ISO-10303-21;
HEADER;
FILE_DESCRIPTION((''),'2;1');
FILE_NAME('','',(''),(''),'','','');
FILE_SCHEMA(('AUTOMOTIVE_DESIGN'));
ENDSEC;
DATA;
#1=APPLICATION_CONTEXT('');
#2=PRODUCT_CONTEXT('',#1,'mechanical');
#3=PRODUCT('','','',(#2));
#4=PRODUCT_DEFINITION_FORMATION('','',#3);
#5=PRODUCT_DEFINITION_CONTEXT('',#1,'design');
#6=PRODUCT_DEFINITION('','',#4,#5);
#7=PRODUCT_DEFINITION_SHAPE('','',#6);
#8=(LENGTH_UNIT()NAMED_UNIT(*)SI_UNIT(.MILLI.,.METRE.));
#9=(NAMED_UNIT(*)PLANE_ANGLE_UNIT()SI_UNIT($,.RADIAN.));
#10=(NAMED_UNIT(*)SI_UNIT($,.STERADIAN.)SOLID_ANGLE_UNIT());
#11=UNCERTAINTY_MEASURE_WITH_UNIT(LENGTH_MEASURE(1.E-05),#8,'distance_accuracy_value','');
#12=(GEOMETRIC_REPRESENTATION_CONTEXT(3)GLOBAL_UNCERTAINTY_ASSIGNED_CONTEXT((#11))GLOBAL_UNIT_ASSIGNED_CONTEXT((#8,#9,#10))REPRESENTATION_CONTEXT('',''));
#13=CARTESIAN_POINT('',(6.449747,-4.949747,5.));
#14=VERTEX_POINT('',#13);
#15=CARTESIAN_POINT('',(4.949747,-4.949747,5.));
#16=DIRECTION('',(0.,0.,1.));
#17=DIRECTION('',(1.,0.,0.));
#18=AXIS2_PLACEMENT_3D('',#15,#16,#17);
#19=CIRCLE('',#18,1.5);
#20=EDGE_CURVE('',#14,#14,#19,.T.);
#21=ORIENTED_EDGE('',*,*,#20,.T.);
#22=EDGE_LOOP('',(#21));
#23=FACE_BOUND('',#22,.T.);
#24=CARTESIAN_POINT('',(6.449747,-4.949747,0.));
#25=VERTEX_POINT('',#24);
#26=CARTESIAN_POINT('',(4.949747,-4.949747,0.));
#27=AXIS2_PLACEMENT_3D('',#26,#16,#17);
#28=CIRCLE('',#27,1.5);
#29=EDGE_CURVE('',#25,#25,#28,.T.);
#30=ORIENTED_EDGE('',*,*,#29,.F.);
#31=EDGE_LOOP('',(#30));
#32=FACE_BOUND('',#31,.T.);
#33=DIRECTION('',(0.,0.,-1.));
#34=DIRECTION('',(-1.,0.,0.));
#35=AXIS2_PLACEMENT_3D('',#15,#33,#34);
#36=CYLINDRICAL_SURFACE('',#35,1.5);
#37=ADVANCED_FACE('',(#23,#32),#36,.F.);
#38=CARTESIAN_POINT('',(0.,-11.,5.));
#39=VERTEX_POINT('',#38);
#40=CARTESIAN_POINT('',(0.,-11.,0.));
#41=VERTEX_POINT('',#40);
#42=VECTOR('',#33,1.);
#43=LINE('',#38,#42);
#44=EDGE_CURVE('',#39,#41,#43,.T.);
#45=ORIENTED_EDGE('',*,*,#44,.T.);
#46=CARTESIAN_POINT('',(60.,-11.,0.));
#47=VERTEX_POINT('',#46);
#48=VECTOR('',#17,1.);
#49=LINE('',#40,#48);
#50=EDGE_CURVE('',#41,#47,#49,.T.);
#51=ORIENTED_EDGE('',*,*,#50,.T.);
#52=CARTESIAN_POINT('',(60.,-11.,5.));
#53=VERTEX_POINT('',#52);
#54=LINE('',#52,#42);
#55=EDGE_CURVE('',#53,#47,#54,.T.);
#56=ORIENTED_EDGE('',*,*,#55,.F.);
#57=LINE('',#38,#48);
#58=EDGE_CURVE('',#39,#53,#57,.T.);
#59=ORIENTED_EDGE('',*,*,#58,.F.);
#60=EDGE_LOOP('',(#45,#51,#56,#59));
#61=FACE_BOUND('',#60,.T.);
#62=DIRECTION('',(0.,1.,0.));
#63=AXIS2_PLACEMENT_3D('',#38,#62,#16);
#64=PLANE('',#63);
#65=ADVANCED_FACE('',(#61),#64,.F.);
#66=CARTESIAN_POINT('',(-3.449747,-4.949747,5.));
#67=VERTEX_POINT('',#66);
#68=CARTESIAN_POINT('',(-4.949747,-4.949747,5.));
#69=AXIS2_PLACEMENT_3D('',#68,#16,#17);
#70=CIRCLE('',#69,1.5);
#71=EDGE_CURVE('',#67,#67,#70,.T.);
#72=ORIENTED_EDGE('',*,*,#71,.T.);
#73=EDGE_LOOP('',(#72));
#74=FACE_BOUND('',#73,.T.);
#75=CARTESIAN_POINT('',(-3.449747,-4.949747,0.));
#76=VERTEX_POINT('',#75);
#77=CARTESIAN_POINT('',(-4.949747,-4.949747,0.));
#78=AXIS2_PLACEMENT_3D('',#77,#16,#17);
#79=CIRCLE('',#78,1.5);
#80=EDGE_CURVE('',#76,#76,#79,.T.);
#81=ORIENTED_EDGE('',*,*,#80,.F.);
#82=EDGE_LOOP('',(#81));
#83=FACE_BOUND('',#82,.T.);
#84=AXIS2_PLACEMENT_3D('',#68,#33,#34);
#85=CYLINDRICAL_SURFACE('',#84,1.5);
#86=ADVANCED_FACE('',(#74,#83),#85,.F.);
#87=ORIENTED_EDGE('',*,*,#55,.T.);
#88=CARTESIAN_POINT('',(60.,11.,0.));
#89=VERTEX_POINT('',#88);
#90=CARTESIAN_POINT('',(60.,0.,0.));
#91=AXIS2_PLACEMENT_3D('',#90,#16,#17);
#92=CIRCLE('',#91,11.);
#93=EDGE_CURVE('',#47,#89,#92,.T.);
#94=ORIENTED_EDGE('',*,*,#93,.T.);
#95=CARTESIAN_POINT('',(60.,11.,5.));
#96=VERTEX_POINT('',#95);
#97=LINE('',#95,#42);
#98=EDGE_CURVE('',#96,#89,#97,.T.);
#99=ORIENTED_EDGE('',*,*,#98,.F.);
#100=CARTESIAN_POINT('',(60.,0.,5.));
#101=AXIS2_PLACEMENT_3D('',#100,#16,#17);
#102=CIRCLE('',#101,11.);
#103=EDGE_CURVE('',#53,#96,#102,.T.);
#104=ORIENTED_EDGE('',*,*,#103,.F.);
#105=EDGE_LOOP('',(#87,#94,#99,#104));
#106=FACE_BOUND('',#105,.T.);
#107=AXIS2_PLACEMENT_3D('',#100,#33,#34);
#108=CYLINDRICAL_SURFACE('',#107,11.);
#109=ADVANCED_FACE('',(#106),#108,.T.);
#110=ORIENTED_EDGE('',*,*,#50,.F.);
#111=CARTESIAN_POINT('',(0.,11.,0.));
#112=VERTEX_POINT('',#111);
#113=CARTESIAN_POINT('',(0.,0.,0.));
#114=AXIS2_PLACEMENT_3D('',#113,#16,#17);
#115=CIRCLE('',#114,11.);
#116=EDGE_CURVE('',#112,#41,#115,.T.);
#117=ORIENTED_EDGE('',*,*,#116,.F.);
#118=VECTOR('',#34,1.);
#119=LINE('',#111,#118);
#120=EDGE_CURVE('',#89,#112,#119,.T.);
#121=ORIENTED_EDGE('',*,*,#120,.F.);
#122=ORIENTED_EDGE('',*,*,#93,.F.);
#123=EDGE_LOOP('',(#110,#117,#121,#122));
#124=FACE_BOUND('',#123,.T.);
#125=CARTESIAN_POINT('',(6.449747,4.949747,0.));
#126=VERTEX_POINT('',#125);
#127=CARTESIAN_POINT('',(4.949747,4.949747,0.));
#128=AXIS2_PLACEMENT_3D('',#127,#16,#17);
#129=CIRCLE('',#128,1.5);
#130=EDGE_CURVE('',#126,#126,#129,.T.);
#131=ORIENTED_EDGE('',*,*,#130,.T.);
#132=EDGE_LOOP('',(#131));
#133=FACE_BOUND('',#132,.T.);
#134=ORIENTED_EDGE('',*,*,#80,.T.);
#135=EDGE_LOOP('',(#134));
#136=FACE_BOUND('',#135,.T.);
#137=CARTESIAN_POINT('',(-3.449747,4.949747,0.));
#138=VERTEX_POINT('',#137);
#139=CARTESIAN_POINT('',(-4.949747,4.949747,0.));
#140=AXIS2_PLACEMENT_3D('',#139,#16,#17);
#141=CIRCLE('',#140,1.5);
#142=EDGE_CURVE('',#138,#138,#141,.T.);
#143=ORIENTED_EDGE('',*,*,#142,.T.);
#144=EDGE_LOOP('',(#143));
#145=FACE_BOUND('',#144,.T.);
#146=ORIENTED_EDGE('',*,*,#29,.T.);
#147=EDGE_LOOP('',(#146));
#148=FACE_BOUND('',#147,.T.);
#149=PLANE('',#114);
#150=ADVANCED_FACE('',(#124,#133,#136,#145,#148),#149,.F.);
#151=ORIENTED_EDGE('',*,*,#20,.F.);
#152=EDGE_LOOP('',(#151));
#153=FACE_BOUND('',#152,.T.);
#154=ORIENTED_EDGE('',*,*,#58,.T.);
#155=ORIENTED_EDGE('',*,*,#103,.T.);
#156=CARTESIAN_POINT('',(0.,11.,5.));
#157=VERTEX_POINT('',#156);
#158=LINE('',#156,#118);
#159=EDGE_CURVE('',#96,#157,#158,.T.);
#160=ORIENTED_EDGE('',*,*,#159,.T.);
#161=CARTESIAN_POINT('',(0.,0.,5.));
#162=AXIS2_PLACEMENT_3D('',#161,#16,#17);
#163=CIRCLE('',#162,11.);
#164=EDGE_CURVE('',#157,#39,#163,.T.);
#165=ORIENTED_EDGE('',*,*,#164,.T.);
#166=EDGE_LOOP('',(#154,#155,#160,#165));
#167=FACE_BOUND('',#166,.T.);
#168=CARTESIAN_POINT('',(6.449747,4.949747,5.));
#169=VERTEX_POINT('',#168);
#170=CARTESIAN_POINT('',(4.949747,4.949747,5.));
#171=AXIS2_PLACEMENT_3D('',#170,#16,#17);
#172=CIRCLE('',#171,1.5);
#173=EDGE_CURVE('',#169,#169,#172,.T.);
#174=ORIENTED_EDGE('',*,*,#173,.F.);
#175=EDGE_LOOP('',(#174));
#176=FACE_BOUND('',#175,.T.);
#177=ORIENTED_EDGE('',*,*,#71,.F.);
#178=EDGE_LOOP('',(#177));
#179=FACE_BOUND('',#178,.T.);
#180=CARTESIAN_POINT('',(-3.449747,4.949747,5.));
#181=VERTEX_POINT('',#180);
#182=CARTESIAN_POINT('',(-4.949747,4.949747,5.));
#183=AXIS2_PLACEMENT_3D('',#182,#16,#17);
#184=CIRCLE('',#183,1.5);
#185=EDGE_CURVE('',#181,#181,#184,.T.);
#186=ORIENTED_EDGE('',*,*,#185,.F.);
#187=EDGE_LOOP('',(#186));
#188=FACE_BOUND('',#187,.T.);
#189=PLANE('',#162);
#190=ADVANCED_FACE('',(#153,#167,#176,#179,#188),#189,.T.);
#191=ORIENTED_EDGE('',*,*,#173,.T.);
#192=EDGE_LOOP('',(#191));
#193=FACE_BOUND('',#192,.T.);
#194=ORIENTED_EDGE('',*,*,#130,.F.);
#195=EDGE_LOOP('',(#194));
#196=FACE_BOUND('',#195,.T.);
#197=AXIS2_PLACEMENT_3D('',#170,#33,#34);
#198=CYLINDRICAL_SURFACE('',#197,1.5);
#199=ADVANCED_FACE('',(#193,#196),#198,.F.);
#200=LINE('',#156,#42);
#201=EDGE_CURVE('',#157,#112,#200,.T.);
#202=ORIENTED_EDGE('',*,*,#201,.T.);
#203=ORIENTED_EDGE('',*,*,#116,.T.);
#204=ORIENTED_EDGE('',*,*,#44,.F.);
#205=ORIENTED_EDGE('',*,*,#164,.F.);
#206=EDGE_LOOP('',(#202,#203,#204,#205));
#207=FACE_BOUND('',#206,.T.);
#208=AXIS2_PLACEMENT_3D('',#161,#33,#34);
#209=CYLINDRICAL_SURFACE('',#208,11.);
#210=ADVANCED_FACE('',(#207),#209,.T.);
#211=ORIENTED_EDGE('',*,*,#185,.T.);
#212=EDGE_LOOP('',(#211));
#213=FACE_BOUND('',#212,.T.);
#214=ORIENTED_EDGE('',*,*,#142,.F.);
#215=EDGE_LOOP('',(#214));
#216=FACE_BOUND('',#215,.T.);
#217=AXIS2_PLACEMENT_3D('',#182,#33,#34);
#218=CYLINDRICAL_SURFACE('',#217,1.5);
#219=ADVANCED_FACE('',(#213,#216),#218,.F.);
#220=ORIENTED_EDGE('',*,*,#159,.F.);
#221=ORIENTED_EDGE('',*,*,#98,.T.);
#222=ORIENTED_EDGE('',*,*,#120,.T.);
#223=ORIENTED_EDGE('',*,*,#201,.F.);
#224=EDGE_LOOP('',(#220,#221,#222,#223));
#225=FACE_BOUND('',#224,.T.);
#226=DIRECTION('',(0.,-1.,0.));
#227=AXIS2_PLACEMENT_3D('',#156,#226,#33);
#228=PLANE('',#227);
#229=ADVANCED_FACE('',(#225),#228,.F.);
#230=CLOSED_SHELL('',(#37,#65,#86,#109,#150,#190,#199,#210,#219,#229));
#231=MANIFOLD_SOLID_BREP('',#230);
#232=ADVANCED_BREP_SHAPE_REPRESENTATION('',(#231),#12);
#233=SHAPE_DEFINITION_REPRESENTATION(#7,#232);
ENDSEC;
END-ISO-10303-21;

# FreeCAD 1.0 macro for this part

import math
import FreeCAD as App
import Part
import Sketcher
from FreeCAD import Vector
Q = App.Units.Quantity

doc = App.newDocument("Part")
body = doc.addObject("PartDesign::Body", "Body")

# Sketch on XY plane
sketch1 = doc.addObject("Sketcher::SketchObject", "Sketch")
body.addObject(sketch1)
sketch1.AttachmentSupport = (doc.XY_Plane, [""])
sketch1.MapMode = "FlatFace"
sketch1.addGeometry(Part.LineSegment(Vector(60, 11, 0), Vector(0, 11, 0)), False)
sketch1.addGeometry(Part.ArcOfCircle(Part.Circle(Vector(0, 0, 0), Vector(0, 0, 1), 11), math.radians(90), math.radians(270)), False)
sketch1.addGeometry(Part.LineSegment(Vector(0, -11, 0), Vector(60, -11, 0)), False)
sketch1.addGeometry(Part.ArcOfCircle(Part.Circle(Vector(60, 0, 0), Vector(0, 0, 1), 11), math.radians(-90), math.radians(90)), False)
sketch1.addGeometry(Part.Circle(Vector(4.9, -4.9, 0), Vector(0, 0, 1), 1.5), False)
sketch1.addGeometry(Part.Circle(Vector(-4.9, -4.9, 0), Vector(0, 0, 1), 1.5), False)
sketch1.addGeometry(Part.Circle(Vector(4.9, 4.9, 0), Vector(0, 0, 1), 1.5), False)
sketch1.addGeometry(Part.Circle(Vector(-4.9, 4.9, 0), Vector(0, 0, 1), 1.5), False)
sketch1.addConstraint(Sketcher.Constraint("Tangent", 0, 2, 1, 1))
sketch1.addConstraint(Sketcher.Constraint("Tangent", 1, 2, 2, 1))
sketch1.addConstraint(Sketcher.Constraint("Tangent", 2, 2, 3, 1))
sketch1.addConstraint(Sketcher.Constraint("Tangent", 3, 2, 0, 1))
sketch1.addConstraint(Sketcher.Constraint("Horizontal", 0))
sketch1.addConstraint(Sketcher.Constraint("Horizontal", 2))
sketch1.addConstraint(Sketcher.Constraint("Coincident", 1, 3, -1, 1))
sketch1.addConstraint(Sketcher.Constraint("Equal", 4, 5))
sketch1.addConstraint(Sketcher.Constraint("Equal", 5, 6))
sketch1.addConstraint(Sketcher.Constraint("Equal", 6, 7))
sketch1.addConstraint(Sketcher.Constraint("Symmetric", 5, 3, 6, 3, -1, 1))
sketch1.addConstraint(Sketcher.Constraint("Symmetric", 4, 3, 7, 3, -1, 1))
sketch1.addConstraint(Sketcher.Constraint("Symmetric", 4, 3, 5, 3, -2))
sketch1.addConstraint(Sketcher.Constraint("Diameter", 4, Q("3 mm")))
sketch1.addConstraint(Sketcher.Constraint("Radius", 1, Q("11 mm")))
sketch1.addConstraint(Sketcher.Constraint("DistanceX", 0, 2, 0, 1, Q("60 mm")))
sketch1.addConstraint(Sketcher.Constraint("DistanceX", -1, 1, 4, 3, Q("4.949747 mm")))
sketch1.addConstraint(Sketcher.Constraint("DistanceY", 4, 3, -1, 1, Q("4.949747 mm")))
pad1 = doc.addObject("PartDesign::Pad", "Pad")
body.addObject(pad1)
pad1.Profile = sketch1
pad1.Length = 5

doc.recompute()
